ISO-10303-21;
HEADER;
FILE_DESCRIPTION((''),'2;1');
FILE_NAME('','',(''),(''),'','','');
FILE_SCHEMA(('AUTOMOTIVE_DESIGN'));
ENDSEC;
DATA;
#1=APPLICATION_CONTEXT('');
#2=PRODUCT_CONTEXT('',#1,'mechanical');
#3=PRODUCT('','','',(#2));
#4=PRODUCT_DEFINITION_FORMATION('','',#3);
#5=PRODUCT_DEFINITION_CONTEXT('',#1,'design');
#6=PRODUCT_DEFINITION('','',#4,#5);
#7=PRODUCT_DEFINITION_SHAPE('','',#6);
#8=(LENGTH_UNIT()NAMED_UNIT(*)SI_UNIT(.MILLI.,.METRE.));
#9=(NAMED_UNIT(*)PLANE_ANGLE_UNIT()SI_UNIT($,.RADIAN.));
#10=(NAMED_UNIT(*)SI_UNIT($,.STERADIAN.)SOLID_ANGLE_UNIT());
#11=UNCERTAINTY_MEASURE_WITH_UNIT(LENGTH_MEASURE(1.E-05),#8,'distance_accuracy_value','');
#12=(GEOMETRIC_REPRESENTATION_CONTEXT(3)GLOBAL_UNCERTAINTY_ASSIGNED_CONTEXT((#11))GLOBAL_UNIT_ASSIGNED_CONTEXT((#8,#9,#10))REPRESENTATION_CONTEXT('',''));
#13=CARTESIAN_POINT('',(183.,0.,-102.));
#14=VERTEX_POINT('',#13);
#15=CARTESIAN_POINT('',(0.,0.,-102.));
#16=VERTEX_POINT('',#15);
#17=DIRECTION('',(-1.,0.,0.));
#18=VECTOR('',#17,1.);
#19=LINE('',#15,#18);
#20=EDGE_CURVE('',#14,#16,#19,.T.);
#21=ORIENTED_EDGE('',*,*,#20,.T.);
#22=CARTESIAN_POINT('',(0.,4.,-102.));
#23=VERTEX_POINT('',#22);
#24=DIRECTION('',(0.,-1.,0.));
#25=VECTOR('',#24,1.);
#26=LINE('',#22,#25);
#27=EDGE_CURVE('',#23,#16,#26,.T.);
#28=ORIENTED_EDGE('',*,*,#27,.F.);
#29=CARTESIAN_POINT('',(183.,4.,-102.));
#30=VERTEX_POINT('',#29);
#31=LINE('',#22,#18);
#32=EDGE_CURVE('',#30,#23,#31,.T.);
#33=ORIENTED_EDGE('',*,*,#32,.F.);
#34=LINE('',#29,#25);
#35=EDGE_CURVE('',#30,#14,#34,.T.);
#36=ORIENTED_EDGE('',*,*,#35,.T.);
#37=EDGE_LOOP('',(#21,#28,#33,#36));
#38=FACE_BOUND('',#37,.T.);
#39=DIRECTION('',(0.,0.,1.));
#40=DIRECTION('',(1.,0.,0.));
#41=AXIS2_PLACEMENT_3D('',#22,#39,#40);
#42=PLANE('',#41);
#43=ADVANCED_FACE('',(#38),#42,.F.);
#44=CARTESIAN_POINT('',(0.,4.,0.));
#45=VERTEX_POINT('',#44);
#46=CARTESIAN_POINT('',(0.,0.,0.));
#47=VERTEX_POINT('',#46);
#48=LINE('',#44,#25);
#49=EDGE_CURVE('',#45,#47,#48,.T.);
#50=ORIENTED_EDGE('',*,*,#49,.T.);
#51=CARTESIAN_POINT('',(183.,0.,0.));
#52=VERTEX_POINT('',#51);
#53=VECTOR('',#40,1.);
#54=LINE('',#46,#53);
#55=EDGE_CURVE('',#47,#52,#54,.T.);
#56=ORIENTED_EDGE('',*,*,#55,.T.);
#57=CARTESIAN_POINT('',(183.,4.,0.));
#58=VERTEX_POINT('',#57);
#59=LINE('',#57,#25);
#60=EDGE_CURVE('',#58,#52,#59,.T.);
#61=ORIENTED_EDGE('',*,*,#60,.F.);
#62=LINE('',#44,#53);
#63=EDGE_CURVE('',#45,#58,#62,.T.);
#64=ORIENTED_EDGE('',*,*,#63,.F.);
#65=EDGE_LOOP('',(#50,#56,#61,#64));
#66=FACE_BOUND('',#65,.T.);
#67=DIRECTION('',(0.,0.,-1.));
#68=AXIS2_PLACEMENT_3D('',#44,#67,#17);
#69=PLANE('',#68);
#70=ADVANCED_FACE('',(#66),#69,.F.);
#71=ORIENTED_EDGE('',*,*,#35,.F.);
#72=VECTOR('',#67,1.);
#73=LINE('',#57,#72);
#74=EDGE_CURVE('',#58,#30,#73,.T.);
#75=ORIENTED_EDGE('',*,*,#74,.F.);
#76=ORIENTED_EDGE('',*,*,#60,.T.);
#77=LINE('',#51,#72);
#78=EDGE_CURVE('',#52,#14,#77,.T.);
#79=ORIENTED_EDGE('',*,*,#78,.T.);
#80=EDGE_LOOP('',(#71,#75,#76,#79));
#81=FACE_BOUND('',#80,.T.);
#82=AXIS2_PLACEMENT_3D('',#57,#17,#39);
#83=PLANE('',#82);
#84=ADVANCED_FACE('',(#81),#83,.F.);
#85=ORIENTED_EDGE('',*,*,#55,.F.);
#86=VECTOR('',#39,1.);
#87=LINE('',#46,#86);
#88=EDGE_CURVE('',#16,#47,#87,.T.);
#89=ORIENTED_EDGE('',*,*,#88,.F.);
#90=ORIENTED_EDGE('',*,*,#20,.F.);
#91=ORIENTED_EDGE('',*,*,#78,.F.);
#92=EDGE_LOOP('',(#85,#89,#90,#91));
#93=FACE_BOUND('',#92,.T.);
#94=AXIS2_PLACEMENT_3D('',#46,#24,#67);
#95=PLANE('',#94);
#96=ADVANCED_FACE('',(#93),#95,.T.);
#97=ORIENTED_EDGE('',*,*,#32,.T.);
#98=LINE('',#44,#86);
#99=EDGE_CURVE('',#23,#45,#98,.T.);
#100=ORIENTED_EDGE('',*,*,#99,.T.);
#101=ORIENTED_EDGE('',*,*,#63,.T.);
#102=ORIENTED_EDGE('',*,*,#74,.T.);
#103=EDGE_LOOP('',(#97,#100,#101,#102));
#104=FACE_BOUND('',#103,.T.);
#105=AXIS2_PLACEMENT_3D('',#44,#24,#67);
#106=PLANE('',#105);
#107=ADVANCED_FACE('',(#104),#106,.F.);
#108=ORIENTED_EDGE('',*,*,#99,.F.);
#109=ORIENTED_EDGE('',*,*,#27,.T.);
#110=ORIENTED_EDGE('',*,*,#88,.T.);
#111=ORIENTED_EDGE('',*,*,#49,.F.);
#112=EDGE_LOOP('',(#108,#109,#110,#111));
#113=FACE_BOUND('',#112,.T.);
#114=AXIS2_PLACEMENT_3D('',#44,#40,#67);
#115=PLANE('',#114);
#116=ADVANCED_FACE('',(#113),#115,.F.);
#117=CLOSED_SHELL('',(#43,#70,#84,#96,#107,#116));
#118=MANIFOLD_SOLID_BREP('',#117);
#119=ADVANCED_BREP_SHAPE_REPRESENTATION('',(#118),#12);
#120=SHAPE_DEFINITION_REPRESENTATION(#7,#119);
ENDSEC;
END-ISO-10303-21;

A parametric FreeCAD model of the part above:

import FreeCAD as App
import Part
import Sketcher

doc = App.newDocument("Part")
params = doc.addObject("Spreadsheet::Sheet", "Params")
for row, (alias, value) in enumerate([
    ("sketch1_width", "183 mm"),
    ("sketch1_height", "102 mm"),
    ("pad1_length", "4 mm"),
], start=1):
    params.set(f"A{row}", alias)
    params.set(f"B{row}", "=" + value)
    params.setAlias(f"B{row}", alias)

body = doc.addObject("PartDesign::Body", "Body")

# Sketch on XZ plane
sketch1 = body.newObject("Sketcher::SketchObject", "Sketch")
sketch1.AttachmentSupport = (doc.getObject("XZ_Plane"), [""])
sketch1.MapMode = "FlatFace"
sketch1.addGeometry([
    Part.LineSegment(App.Vector(0, -102, 0), App.Vector(0, 0, 0)),
    Part.LineSegment(App.Vector(0, 0, 0), App.Vector(183, 0, 0)),
    Part.LineSegment(App.Vector(183, 0, 0), App.Vector(183, -102, 0)),
    Part.LineSegment(App.Vector(183, -102, 0), App.Vector(0, -102, 0)),
], False)
sketch1.addConstraint([
    Sketcher.Constraint("Coincident", 0, 2, 1, 1),
    Sketcher.Constraint("Coincident", 1, 2, 2, 1),
    Sketcher.Constraint("Coincident", 2, 2, 3, 1),
    Sketcher.Constraint("Coincident", 3, 2, 0, 1),
    Sketcher.Constraint("Vertical", 0),
    Sketcher.Constraint("Horizontal", 1),
    Sketcher.Constraint("Vertical", 2),
    Sketcher.Constraint("Horizontal", 3),
    Sketcher.Constraint("Coincident", 0, 2, -1, 1),
    Sketcher.Constraint("DistanceX", 1, 1, 1, 2, 183.0),
    Sketcher.Constraint("DistanceY", 0, 1, 0, 2, 102.0),
])
sketch1.setExpression("Constraints[9]", "Params.sketch1_width")
sketch1.setExpression("Constraints[10]", "Params.sketch1_height")
pad1 = body.newObject("PartDesign::Pad", "Pad")
pad1.Profile = sketch1
pad1.setExpression("Length", "Params.pad1_length")
pad1.Reversed = True

doc.recompute()
